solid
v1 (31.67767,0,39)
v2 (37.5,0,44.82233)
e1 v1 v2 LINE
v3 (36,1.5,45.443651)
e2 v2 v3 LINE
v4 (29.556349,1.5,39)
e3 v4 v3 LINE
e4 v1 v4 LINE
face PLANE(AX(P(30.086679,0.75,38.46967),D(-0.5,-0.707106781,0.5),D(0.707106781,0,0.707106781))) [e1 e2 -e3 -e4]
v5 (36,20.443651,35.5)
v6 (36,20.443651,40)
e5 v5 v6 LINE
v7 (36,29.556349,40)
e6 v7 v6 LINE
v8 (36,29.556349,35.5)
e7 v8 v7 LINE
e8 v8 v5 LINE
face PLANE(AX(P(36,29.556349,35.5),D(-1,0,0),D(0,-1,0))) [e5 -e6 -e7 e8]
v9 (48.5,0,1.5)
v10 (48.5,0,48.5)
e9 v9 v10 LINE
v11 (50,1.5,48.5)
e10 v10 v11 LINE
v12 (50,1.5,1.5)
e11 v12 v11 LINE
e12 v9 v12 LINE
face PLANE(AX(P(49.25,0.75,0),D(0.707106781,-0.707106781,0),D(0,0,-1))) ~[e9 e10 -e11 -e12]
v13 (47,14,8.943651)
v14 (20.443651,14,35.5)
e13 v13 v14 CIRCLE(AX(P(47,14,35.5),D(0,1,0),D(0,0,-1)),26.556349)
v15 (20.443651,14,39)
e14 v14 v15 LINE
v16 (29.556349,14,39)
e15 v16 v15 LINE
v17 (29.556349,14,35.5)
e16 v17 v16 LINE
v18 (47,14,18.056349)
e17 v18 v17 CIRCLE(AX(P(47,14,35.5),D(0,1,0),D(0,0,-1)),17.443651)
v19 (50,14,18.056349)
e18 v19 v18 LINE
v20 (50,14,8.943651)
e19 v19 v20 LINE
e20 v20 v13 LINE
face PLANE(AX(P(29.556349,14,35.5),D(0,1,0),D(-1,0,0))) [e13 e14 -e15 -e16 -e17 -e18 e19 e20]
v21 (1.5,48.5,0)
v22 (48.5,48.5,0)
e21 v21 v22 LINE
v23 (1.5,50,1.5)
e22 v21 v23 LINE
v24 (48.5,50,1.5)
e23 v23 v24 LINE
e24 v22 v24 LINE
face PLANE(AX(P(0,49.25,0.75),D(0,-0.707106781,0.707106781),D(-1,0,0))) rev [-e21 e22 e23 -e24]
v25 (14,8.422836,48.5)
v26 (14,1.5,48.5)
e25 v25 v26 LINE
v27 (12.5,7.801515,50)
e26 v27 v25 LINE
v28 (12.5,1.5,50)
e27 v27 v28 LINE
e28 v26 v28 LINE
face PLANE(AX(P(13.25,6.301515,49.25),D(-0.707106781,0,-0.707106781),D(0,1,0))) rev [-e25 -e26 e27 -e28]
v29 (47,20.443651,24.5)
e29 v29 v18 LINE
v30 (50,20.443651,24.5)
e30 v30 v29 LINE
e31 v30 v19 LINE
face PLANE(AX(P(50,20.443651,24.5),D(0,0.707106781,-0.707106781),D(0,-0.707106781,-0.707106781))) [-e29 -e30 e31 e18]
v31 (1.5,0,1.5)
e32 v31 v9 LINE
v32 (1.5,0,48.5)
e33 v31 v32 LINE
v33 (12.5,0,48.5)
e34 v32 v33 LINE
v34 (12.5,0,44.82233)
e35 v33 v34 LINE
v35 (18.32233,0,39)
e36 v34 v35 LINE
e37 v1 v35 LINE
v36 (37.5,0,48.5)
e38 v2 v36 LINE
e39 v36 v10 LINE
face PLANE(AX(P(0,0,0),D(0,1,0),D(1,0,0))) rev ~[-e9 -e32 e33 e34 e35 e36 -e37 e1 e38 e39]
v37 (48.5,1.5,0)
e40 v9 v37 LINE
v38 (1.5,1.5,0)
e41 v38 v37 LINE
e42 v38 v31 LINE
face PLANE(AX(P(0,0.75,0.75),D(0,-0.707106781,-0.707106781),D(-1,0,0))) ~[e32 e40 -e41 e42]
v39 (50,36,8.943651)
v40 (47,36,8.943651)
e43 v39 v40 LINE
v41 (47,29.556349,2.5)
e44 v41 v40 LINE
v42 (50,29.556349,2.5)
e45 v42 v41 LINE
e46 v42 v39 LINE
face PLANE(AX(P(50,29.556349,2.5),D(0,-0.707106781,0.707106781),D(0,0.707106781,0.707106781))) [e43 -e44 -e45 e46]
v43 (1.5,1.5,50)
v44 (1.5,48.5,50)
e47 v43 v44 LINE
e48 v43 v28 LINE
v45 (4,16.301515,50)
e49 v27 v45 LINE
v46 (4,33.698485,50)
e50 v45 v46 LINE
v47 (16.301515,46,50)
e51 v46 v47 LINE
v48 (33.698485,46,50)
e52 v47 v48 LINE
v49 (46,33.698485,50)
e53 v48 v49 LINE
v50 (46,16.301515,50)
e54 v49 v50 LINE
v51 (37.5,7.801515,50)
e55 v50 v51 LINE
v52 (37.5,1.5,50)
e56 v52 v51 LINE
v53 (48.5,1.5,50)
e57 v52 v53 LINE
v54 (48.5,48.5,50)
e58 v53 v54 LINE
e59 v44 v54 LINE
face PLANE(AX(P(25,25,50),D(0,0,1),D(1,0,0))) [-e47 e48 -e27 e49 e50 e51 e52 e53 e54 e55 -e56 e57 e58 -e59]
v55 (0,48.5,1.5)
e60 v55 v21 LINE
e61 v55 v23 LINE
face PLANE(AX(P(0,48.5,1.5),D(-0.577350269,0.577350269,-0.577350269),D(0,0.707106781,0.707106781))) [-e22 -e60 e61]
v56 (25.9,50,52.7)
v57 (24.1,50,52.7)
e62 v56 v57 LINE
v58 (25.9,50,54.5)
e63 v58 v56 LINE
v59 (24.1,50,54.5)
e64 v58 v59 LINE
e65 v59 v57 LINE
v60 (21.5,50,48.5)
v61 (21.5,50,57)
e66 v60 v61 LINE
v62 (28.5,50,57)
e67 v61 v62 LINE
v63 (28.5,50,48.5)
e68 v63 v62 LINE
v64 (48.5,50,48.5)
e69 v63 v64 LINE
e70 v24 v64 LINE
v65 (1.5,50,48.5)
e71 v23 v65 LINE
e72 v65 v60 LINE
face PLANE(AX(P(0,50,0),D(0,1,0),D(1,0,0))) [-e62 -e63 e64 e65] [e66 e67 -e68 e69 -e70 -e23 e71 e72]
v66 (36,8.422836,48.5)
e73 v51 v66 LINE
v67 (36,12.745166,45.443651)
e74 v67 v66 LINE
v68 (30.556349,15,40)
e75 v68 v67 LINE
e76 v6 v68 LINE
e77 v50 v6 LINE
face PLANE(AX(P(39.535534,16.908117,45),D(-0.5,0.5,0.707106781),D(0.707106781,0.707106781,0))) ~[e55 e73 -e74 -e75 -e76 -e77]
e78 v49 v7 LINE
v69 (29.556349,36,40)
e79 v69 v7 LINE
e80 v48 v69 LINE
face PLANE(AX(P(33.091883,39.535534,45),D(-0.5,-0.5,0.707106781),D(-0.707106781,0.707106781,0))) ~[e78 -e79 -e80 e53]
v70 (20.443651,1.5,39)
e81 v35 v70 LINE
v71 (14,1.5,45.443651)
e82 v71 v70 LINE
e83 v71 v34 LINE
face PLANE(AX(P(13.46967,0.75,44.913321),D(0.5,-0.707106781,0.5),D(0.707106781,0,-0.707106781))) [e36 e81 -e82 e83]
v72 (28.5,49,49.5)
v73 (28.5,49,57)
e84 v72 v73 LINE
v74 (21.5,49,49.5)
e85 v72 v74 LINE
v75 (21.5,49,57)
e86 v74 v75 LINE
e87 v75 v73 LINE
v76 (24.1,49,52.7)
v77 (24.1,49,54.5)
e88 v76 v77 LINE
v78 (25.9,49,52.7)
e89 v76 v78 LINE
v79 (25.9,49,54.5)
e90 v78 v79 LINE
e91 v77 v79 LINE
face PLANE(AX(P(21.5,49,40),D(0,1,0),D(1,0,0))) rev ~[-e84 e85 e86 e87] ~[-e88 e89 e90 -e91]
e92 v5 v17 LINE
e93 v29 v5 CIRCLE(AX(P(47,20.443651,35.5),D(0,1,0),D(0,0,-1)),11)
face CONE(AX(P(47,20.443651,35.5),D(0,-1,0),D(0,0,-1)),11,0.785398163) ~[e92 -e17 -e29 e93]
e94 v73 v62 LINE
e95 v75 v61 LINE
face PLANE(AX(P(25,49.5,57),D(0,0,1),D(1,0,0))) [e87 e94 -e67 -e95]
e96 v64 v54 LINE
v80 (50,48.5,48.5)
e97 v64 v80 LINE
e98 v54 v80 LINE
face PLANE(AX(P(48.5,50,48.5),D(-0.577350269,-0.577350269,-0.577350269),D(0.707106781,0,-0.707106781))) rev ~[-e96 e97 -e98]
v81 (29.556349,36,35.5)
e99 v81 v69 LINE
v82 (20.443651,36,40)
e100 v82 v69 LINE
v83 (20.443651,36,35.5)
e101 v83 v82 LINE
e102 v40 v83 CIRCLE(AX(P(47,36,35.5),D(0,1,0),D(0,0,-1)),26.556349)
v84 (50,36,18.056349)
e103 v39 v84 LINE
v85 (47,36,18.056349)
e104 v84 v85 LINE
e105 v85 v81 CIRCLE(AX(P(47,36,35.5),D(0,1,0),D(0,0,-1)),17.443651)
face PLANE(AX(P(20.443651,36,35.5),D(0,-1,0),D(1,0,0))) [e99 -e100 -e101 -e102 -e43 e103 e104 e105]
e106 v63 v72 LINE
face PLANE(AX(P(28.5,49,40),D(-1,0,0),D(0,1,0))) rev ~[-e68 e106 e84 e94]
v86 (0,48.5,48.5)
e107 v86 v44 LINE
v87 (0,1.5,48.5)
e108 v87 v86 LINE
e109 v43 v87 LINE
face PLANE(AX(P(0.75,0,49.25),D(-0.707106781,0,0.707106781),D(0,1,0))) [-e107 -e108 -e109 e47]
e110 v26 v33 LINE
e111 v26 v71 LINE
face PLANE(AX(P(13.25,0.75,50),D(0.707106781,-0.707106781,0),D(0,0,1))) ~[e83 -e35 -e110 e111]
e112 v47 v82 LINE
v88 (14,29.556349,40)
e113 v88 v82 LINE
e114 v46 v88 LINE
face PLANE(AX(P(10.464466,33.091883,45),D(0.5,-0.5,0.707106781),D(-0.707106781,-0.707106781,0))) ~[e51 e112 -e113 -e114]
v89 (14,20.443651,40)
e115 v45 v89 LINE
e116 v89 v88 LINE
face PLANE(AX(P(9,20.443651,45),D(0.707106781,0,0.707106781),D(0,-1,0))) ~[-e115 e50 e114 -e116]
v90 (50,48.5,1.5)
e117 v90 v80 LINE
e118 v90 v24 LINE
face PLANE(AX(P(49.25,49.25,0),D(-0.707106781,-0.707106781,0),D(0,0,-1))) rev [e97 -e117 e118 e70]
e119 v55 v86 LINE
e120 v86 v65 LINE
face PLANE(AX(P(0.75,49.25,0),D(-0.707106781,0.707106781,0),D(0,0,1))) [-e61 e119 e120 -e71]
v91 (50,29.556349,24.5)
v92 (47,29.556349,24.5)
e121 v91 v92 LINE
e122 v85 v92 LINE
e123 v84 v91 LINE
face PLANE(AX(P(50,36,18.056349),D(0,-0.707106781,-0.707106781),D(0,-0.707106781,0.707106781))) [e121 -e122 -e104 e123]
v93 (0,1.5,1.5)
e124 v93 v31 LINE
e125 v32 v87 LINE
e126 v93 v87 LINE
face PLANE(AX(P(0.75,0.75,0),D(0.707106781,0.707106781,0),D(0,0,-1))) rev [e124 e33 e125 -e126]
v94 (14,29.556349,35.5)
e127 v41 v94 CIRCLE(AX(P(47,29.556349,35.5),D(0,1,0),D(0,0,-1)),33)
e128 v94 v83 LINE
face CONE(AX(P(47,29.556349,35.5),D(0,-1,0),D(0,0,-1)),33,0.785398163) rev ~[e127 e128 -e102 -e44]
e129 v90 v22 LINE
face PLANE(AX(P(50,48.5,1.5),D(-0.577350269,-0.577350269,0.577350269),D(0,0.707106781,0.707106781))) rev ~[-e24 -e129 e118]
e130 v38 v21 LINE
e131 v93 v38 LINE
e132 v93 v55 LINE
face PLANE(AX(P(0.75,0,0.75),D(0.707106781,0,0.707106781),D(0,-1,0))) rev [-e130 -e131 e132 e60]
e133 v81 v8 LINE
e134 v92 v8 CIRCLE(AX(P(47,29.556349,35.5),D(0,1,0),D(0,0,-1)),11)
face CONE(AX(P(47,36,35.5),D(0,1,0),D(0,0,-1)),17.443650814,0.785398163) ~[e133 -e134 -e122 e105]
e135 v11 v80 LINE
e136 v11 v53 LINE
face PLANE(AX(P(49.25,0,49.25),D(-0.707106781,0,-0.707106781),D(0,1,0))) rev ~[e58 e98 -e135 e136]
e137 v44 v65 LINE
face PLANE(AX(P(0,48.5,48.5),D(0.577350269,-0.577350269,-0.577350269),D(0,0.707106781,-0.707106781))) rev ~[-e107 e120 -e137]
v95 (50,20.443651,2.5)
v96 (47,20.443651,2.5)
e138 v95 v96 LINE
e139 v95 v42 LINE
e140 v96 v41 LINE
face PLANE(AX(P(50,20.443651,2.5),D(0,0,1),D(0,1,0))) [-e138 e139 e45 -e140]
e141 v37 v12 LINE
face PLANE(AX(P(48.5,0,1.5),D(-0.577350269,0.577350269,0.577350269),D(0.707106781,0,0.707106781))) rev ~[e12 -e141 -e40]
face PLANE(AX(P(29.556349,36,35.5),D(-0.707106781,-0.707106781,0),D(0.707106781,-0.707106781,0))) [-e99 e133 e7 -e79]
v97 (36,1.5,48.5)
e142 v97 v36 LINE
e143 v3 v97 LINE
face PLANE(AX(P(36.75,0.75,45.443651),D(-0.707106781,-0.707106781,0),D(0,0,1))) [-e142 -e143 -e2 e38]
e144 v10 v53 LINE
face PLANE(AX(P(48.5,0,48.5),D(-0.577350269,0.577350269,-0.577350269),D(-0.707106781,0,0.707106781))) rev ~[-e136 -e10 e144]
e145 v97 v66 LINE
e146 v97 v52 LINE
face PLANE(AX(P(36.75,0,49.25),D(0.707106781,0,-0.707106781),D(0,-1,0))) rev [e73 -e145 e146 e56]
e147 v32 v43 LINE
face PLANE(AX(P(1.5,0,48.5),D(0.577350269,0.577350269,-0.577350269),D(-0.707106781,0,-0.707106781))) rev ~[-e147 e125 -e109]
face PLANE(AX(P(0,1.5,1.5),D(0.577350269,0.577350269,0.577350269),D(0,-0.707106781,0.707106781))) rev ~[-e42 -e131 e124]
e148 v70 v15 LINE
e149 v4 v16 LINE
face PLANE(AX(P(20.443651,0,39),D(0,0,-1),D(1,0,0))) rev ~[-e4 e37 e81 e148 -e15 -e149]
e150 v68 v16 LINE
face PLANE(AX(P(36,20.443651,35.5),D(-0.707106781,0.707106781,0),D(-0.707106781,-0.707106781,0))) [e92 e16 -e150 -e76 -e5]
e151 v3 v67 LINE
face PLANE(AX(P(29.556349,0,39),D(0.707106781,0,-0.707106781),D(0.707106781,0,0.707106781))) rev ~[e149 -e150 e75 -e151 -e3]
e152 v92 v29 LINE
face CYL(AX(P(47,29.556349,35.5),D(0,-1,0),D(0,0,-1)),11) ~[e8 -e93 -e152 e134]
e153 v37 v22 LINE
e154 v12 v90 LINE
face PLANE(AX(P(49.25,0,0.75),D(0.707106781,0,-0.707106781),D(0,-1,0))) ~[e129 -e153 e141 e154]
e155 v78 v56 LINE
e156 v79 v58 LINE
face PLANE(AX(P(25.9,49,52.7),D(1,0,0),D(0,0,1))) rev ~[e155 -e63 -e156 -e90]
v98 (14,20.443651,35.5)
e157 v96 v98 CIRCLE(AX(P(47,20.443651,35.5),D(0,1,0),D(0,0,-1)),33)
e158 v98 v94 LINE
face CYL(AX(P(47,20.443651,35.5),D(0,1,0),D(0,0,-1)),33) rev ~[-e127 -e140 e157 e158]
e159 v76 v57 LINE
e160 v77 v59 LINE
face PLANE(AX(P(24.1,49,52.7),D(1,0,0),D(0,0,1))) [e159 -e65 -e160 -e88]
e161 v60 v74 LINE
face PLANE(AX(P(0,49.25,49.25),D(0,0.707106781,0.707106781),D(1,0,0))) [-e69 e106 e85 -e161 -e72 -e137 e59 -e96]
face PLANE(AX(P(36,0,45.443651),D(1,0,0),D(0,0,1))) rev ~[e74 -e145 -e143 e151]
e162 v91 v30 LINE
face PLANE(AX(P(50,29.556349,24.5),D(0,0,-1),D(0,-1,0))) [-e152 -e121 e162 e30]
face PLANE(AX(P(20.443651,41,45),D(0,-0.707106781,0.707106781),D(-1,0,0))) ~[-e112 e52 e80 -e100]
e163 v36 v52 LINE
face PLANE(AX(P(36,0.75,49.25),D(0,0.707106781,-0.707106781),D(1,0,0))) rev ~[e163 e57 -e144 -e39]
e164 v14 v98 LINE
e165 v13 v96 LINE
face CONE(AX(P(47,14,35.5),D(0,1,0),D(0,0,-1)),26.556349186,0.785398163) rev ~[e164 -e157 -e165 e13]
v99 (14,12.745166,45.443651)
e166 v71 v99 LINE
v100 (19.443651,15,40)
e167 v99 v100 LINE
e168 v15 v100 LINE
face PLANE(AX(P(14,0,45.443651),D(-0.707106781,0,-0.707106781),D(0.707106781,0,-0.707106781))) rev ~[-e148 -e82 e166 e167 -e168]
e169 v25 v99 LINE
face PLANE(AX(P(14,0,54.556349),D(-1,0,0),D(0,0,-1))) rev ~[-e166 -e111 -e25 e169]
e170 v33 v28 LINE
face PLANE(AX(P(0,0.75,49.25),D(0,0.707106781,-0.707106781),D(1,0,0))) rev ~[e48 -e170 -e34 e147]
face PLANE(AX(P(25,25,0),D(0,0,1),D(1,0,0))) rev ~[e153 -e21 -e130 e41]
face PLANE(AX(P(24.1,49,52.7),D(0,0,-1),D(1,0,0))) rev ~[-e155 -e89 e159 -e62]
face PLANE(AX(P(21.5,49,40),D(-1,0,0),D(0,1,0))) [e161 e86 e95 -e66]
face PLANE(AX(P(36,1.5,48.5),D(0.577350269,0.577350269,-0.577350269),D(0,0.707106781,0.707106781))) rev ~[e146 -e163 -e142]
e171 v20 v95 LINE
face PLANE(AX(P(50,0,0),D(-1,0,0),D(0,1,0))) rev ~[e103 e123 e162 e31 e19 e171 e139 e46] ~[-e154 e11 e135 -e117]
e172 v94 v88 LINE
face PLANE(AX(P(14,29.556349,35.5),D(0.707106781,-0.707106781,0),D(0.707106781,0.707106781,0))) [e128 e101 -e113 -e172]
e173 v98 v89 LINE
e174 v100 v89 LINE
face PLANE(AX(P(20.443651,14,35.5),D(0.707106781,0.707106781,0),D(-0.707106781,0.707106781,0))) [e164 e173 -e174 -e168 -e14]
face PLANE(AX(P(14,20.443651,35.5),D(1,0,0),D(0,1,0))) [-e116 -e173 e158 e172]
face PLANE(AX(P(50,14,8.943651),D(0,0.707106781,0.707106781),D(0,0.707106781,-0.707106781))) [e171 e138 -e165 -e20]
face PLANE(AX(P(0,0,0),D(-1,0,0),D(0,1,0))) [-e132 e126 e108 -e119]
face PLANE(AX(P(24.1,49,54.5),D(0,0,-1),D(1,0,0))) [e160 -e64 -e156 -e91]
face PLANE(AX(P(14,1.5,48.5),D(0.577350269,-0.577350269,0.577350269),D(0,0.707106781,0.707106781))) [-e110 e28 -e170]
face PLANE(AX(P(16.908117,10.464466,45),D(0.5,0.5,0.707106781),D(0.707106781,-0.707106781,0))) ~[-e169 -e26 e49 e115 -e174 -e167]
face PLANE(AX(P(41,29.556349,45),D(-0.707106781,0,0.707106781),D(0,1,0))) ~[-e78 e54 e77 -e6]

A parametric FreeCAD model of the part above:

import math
import FreeCAD as App
import Part
import Sketcher
Q = App.Units.Quantity


def edges_at(feature, points):
    """Names of the edges that pass closest to the given points."""
    edges = feature.Shape.Edges
    near = lambda p: min(range(len(edges)), key=lambda i: edges[i].distToShape(Part.Vertex(*p))[0])
    return sorted({f"Edge{near(p) + 1}" for p in points})

doc = App.newDocument("Part")
body = doc.addObject("PartDesign::Body", "Body")

sketch1 = body.newObject("Sketcher::SketchObject", "Sketch")
sketch1.AttachmentSupport = (doc.getObject("XY_Plane"), [""])
sketch1.MapMode = "FlatFace"
sketch1.addGeometry([
    Part.LineSegment(App.Vector(0, 50, 0), App.Vector(0, 0, 0)),
    Part.LineSegment(App.Vector(0, 0, 0), App.Vector(50, 0, 0)),
    Part.LineSegment(App.Vector(50, 0, 0), App.Vector(50, 50, 0)),
    Part.LineSegment(App.Vector(50, 50, 0), App.Vector(0, 50, 0)),
], False)
sketch1.addConstraint([
    Sketcher.Constraint("Coincident", 0, 2, 1, 1),
    Sketcher.Constraint("Coincident", 1, 2, 2, 1),
    Sketcher.Constraint("Coincident", 2, 2, 3, 1),
    Sketcher.Constraint("Coincident", 3, 2, 0, 1),
    Sketcher.Constraint("Vertical", 0),
    Sketcher.Constraint("Horizontal", 1),
    Sketcher.Constraint("Vertical", 2),
    Sketcher.Constraint("Horizontal", 3),
    Sketcher.Constraint("Coincident", 0, 2, -1, 1),
    Sketcher.Constraint("Equal", 3, 0),
    Sketcher.Constraint("DistanceX", 1, 1, 1, 2, Q("50 mm")),
])
pad1 = body.newObject("PartDesign::Pad", "Pad")
pad1.Profile = sketch1
pad1.Length = 50

sketch2 = body.newObject("Sketcher::SketchObject", "Sketch001")
sketch2.AttachmentSupport = (doc.getObject("YZ_Plane"), [""])
sketch2.MapMode = "FlatFace"
sketch2.AttachmentOffset = App.Placement(App.Vector(0, 0, 50), App.Rotation())
sketch2.addGeometry([
    Part.LineSegment(App.Vector(30, 2, 0), App.Vector(36, 9, 0)),
    Part.LineSegment(App.Vector(36, 9, 0), App.Vector(36, 18, 0)),
    Part.LineSegment(App.Vector(36, 18, 0), App.Vector(30, 24, 0)),
    Part.LineSegment(App.Vector(30, 24, 0), App.Vector(20, 24, 0)),
    Part.LineSegment(App.Vector(20, 24, 0), App.Vector(14, 18, 0)),
    Part.LineSegment(App.Vector(14, 18, 0), App.Vector(14, 9, 0)),
    Part.LineSegment(App.Vector(14, 9, 0), App.Vector(20, 2, 0)),
    Part.LineSegment(App.Vector(20, 2, 0), App.Vector(30, 2, 0)),
], False)
sketch2.addConstraint([
    Sketcher.Constraint("Coincident", 0, 2, 1, 1),
    Sketcher.Constraint("Coincident", 1, 2, 2, 1),
    Sketcher.Constraint("Coincident", 2, 2, 3, 1),
    Sketcher.Constraint("Coincident", 3, 2, 4, 1),
    Sketcher.Constraint("Coincident", 4, 2, 5, 1),
    Sketcher.Constraint("Coincident", 5, 2, 6, 1),
    Sketcher.Constraint("Coincident", 6, 2, 7, 1),
    Sketcher.Constraint("Coincident", 7, 2, 0, 1),
    Sketcher.Constraint("Vertical", 1),
    Sketcher.Constraint("Horizontal", 3),
    Sketcher.Constraint("Vertical", 5),
    Sketcher.Constraint("Horizontal", 7),
    Sketcher.Constraint("Perpendicular", 0, 2),
    Sketcher.Constraint("Perpendicular", 2, 4),
    Sketcher.Constraint("Perpendicular", 4, 6),
    Sketcher.Constraint("Horizontal", 1, 2, 4, 2),
    Sketcher.Constraint("Horizontal", 0, 2, 5, 2),
    Sketcher.Constraint("Vertical", 3, 2, 6, 2),
    Sketcher.Constraint("Vertical", 2, 2, 7, 2),
    Sketcher.Constraint("Equal", 7, 1),
    Sketcher.Constraint("DistanceX", -1, 1, 0, 2, Q("36 mm")),
    Sketcher.Constraint("DistanceX", -1, 1, 4, 2, Q("14 mm")),
    Sketcher.Constraint("DistanceY", -1, 1, 2, 2, Q("24.5 mm")),
    Sketcher.Constraint("DistanceX", 3, 2, 3, 1, Q("9.112698 mm")),
])

sketch3 = body.newObject("Sketcher::SketchObject", "Sketch002")
sketch3.AttachmentSupport = (doc.getObject("XZ_Plane"), [""])
sketch3.MapMode = "FlatFace"
sketch3.AttachmentOffset = App.Placement(App.Vector(0, 0, -25), App.Rotation())
sketch3.addGeometry([
    Part.LineSegment(App.Vector(50, 13.5, 0), App.Vector(47, 13.5, 0)),
    Part.ArcOfCircle(Part.Circle(App.Vector(47, 35.5, 0), App.Vector(0, 0, 1), 22), math.radians(180), math.radians(270)),
    Part.LineSegment(App.Vector(25, 35.5, 0), App.Vector(25, 50, 0)),
], False)
sketch3.addConstraint([
    Sketcher.Constraint("Tangent", 0, 2, 1, 2),
    Sketcher.Constraint("Tangent", 1, 1, 2, 1),
    Sketcher.Constraint("Horizontal", 0),
    Sketcher.Constraint("Vertical", 2),
    Sketcher.Constraint("Radius", 1, Q("22 mm")),
    Sketcher.Constraint("DistanceX", 0, 2, 0, 1, Q("3 mm")),
    Sketcher.Constraint("DistanceY", 2, 1, 2, 2, Q("14.5 mm")),
    Sketcher.Constraint("DistanceX", -1, 1, 1, 3, Q("47 mm")),
    Sketcher.Constraint("DistanceY", -1, 1, 2, 2, Q("50 mm")),
])
doc.recompute()

subtractivepipe = body.newObject("PartDesign::SubtractivePipe", "SubtractivePipe")
subtractivepipe.Profile = sketch2
subtractivepipe.Spine = (sketch3, ["Edge1", "Edge2", "Edge3"])
doc.recompute()

chamfer = body.newObject("PartDesign::Chamfer", "Chamfer")
chamfer.Base = (subtractivepipe, edges_at(subtractivepipe, [
    (17.222, 17.222, 50),
    (32.778, 17.222, 50),
    (36, 25, 50),
    (32.778, 32.778, 50),
    (17.222, 32.778, 50),
    (14, 25, 50),
    (25, 14, 50),
    (25, 36, 50),
]))
chamfer.Size = 10

sketch4 = body.newObject("Sketcher::SketchObject", "Sketch003")
sketch4.AttachmentSupport = (doc.getObject("XZ_Plane"), [""])
sketch4.MapMode = "FlatFace"
sketch4.addGeometry([
    Part.LineSegment(App.Vector(30, 39, 0), App.Vector(36, 45, 0)),
    Part.LineSegment(App.Vector(36, 45, 0), App.Vector(36, 55, 0)),
    Part.LineSegment(App.Vector(36, 55, 0), App.Vector(30, 61, 0)),
    Part.LineSegment(App.Vector(30, 61, 0), App.Vector(20, 61, 0)),
    Part.LineSegment(App.Vector(20, 61, 0), App.Vector(14, 55, 0)),
    Part.LineSegment(App.Vector(14, 55, 0), App.Vector(14, 45, 0)),
    Part.LineSegment(App.Vector(14, 45, 0), App.Vector(20, 39, 0)),
    Part.LineSegment(App.Vector(20, 39, 0), App.Vector(30, 39, 0)),
], False)
sketch4.addConstraint([
    Sketcher.Constraint("Coincident", 0, 2, 1, 1),
    Sketcher.Constraint("Coincident", 1, 2, 2, 1),
    Sketcher.Constraint("Coincident", 2, 2, 3, 1),
    Sketcher.Constraint("Coincident", 3, 2, 4, 1),
    Sketcher.Constraint("Coincident", 4, 2, 5, 1),
    Sketcher.Constraint("Coincident", 5, 2, 6, 1),
    Sketcher.Constraint("Coincident", 6, 2, 7, 1),
    Sketcher.Constraint("Coincident", 7, 2, 0, 1),
    Sketcher.Constraint("Vertical", 1),
    Sketcher.Constraint("Horizontal", 3),
    Sketcher.Constraint("Vertical", 5),
    Sketcher.Constraint("Horizontal", 7),
    Sketcher.Constraint("Perpendicular", 0, 2),
    Sketcher.Constraint("Perpendicular", 2, 4),
    Sketcher.Constraint("Perpendicular", 4, 6),
    Sketcher.Constraint("Horizontal", 1, 2, 4, 2),
    Sketcher.Constraint("Horizontal", 0, 2, 5, 2),
    Sketcher.Constraint("Vertical", 3, 2, 6, 2),
    Sketcher.Constraint("Vertical", 2, 2, 7, 2),
    Sketcher.Constraint("Equal", 7, 1),
    Sketcher.Constraint("DistanceX", -1, 1, 0, 2, Q("36 mm")),
    Sketcher.Constraint("DistanceY", -1, 1, 2, 2, Q("61 mm")),
    Sketcher.Constraint("DistanceX", -1, 1, 4, 2, Q("14 mm")),
    Sketcher.Constraint("DistanceX", 3, 2, 3, 1, Q("9.112698 mm")),
])
pocket1 = body.newObject("PartDesign::Pocket", "Pocket")
pocket1.Profile = sketch4
pocket1.Length = 22
doc.recompute()

chamfer2 = body.newObject("PartDesign::Chamfer", "Chamfer001")
chamfer2.Base = (pocket1, edges_at(pocket1, [
    (50, 25, 50),
    (25, 50, 50),
    (0, 25, 50),
    (25, 50, 0),
    (50, 25, 0),
    (25, 0, 0),
    (0, 25, 0),
    (7, 0, 50),
    (0, 50, 25),
    (50, 50, 25),
    (50, 0, 25),
    (0, 0, 25),
    (43, 0, 50),
    (36, 0, 47.722),
    (14, 0, 47.722),
    (17.222, 0, 42.222),
    (32.778, 0, 42.222),
    (14, 3.151, 50),
    (36, 3.151, 50),
]))
chamfer2.Size = 1.5

sketch5 = body.newObject("Sketcher::SketchObject", "Sketch004")
sketch5.AttachmentSupport = (doc.getObject("XY_Plane"), [""])
sketch5.MapMode = "FlatFace"
sketch5.AttachmentOffset = App.Placement(App.Vector(0, 0, 50), App.Rotation())
sketch5.addGeometry([
    Part.LineSegment(App.Vector(21.5, 50, 0), App.Vector(21.5, 49, 0)),
    Part.LineSegment(App.Vector(21.5, 49, 0), App.Vector(28.5, 49, 0)),
    Part.LineSegment(App.Vector(28.5, 49, 0), App.Vector(28.5, 50, 0)),
    Part.LineSegment(App.Vector(28.5, 50, 0), App.Vector(21.5, 50, 0)),
], False)
sketch5.addConstraint([
    Sketcher.Constraint("Coincident", 0, 2, 1, 1),
    Sketcher.Constraint("Coincident", 1, 2, 2, 1),
    Sketcher.Constraint("Coincident", 2, 2, 3, 1),
    Sketcher.Constraint("Coincident", 3, 2, 0, 1),
    Sketcher.Constraint("Vertical", 0),
    Sketcher.Constraint("Horizontal", 1),
    Sketcher.Constraint("Vertical", 2),
    Sketcher.Constraint("Horizontal", 3),
    Sketcher.Constraint("DistanceX", 1, 1, 1, 2, Q("7 mm")),
    Sketcher.Constraint("DistanceY", 0, 2, 0, 1, Q("1 mm")),
    Sketcher.Constraint("DistanceY", -1, 1, 0, 2, Q("49 mm")),
    Sketcher.Constraint("DistanceX", -1, 1, 0, 2, Q("21.5 mm")),
])
pad2 = body.newObject("PartDesign::Pad", "Pad001")
pad2.Profile = sketch5
pad2.Type = "TwoLengths"
pad2.Length = 7
pad2.Length2 = 10

sketch6 = body.newObject("Sketcher::SketchObject", "Sketch005")
sketch6.AttachmentSupport = (doc.getObject("XZ_Plane"), [""])
sketch6.MapMode = "FlatFace"
sketch6.AttachmentOffset = App.Placement(App.Vector(0, 0, -49), App.Rotation())
sketch6.addGeometry([
    Part.LineSegment(App.Vector(24.1, 54.5, 0), App.Vector(24.1, 52.7, 0)),
    Part.LineSegment(App.Vector(24.1, 52.7, 0), App.Vector(25.9, 52.7, 0)),
    Part.LineSegment(App.Vector(25.9, 52.7, 0), App.Vector(25.9, 54.5, 0)),
    Part.LineSegment(App.Vector(25.9, 54.5, 0), App.Vector(24.1, 54.5, 0)),
], False)
sketch6.addConstraint([
    Sketcher.Constraint("Coincident", 0, 2, 1, 1),
    Sketcher.Constraint("Coincident", 1, 2, 2, 1),
    Sketcher.Constraint("Coincident", 2, 2, 3, 1),
    Sketcher.Constraint("Coincident", 3, 2, 0, 1),
    Sketcher.Constraint("Vertical", 0),
    Sketcher.Constraint("Horizontal", 1),
    Sketcher.Constraint("Vertical", 2),
    Sketcher.Constraint("Horizontal", 3),
    Sketcher.Constraint("Equal", 3, 0),
    Sketcher.Constraint("DistanceX", 1, 1, 1, 2, Q("1.8 mm")),
    Sketcher.Constraint("DistanceX", -1, 1, 0, 2, Q("24.1 mm")),
    Sketcher.Constraint("DistanceY", -1, 1, 0, 2, Q("52.7 mm")),
])
pocket2 = body.newObject("PartDesign::Pocket", "Pocket001")
pocket2.Profile = sketch6
pocket2.Length = 7

doc.recompute()
